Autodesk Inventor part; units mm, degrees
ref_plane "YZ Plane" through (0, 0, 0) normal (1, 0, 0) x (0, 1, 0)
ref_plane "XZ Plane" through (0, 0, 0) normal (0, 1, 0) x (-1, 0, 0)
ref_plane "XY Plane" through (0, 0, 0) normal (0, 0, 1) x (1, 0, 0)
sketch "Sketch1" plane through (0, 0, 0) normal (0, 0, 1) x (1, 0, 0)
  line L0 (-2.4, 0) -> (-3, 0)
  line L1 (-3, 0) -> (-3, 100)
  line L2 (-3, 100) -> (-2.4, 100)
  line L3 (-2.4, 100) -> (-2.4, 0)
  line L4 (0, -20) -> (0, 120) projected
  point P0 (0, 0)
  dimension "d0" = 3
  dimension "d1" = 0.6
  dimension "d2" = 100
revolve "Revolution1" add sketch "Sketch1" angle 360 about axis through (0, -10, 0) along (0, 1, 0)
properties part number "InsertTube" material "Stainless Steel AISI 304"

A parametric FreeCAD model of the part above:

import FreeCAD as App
import Part
import Sketcher

V = App.Vector
Q = App.Units.Quantity


def add_polygon(sketch, points):
    """Adds a closed chain of lines whose ends are joined by coincident constraints."""
    first, n = sketch.GeometryCount, len(points)
    for a, b in zip(points, points[1:] + points[:1]):
        sketch.addGeometry(Part.LineSegment(App.Vector(*a, 0), App.Vector(*b, 0)), False)
    for i in range(n):
        sketch.addConstraint(Sketcher.Constraint("Coincident", first + i, 2, first + (i + 1) % n, 1))

doc = App.newDocument("Part")
params = doc.addObject("Spreadsheet::Sheet", "Params")
for row, (alias, value) in enumerate([
    ("sketch1_height", "100 mm"),
    ("sketch1_width", "0.6 mm"),
    ("revolution_angle", "360 deg"),
], start=1):
    params.set(f"A{row}", alias)
    params.set(f"B{row}", "=" + value)
    params.setAlias(f"B{row}", alias)

body = doc.addObject("PartDesign::Body", "Body")

# Sketch on XY plane
sketch1 = body.newObject("Sketcher::SketchObject", "Sketch")
sketch1.AttachmentSupport = (doc.getObject("XY_Plane"), [""])
sketch1.MapMode = "FlatFace"
add_polygon(sketch1, [(-3, 0), (-2.4, 0), (-2.4, 100), (-3, 100)])  # lines 0-3
sketch1.addConstraint([
    Sketcher.Constraint("Horizontal", 0),
    Sketcher.Constraint("Vertical", 1),
    Sketcher.Constraint("Horizontal", 2),
    Sketcher.Constraint("Vertical", 3),
    Sketcher.Constraint("PointOnObject", 0, 2, -1),
    Sketcher.Constraint("DistanceY", 1, 1, 1, 2, Q("100 mm")),
    Sketcher.Constraint("DistanceX", 0, 1, 0, 2, Q("0.6 mm")),
    Sketcher.Constraint("DistanceX", 2, 2, -1, 1, Q("3 mm")),
])
sketch1.setExpression("Constraints[9]", "Params.sketch1_height")
sketch1.setExpression("Constraints[10]", "Params.sketch1_width")
revolution = body.newObject("PartDesign::Revolution", "Revolution")
revolution.Profile = sketch1
revolution.ReferenceAxis = (sketch1, ["V_Axis"])
revolution.setExpression("Angle", "Params.revolution_angle")

doc.recompute()
